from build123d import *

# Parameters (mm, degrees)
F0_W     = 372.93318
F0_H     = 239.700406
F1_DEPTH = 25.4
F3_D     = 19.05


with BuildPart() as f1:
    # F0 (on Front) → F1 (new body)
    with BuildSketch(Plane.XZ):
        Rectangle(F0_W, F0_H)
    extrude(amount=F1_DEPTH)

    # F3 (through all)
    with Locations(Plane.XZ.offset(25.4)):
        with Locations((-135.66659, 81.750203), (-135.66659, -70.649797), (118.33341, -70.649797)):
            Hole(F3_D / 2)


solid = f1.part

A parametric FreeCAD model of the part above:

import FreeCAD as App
import Part
import Sketcher

V = App.Vector
Q = App.Units.Quantity

doc = App.newDocument("Part")
body = doc.addObject("PartDesign::Body", "Body")

sketch1 = body.newObject("Sketcher::SketchObject", "Sketch")
sketch1.AttachmentSupport = (doc.getObject("XZ_Plane"), [""])
sketch1.MapMode = "FlatFace"
sketch1.addGeometry(Part.LineSegment(V(-186, 120, 0), V(-186, -120, 0)), False)
sketch1.addGeometry(Part.LineSegment(V(-186, -120, 0), V(186, -120, 0)), False)
sketch1.addGeometry(Part.LineSegment(V(186, -120, 0), V(186, 120, 0)), False)
sketch1.addGeometry(Part.LineSegment(V(186, 120, 0), V(-186, 120, 0)), False)
sketch1.addConstraint(Sketcher.Constraint("Coincident", 0, 2, 1, 1))
sketch1.addConstraint(Sketcher.Constraint("Coincident", 1, 2, 2, 1))
sketch1.addConstraint(Sketcher.Constraint("Coincident", 2, 2, 3, 1))
sketch1.addConstraint(Sketcher.Constraint("Coincident", 3, 2, 0, 1))
sketch1.addConstraint(Sketcher.Constraint("Vertical", 0))
sketch1.addConstraint(Sketcher.Constraint("Horizontal", 1))
sketch1.addConstraint(Sketcher.Constraint("Vertical", 2))
sketch1.addConstraint(Sketcher.Constraint("Horizontal", 3))
sketch1.addConstraint(Sketcher.Constraint("Symmetric", 0, 2, 2, 2, -1, 1))
sketch1.addConstraint(Sketcher.Constraint("DistanceX", 1, 1, 1, 2, Q("372.93318 mm")))
sketch1.addConstraint(Sketcher.Constraint("DistanceY", 0, 2, 0, 1, Q("239.700406 mm")))
pad1 = body.newObject("PartDesign::Pad", "Pad")
pad1.Profile = sketch1
pad1.Length = Q("1 in")

sketch2 = body.newObject("Sketcher::SketchObject", "Sketch001")
sketch2.AttachmentSupport = (doc.getObject("XZ_Plane"), [""])
sketch2.MapMode = "FlatFace"
sketch2.AttachmentOffset = App.Placement(V(0, 0, 1 * 25.4), App.Rotation())
sketch2.addGeometry(Part.Circle(V(-136, 82, 0), V(0, 0, 1), 10), False)
sketch2.addGeometry(Part.Circle(V(-136, -71, 0), V(0, 0, 1), 10), False)
sketch2.addGeometry(Part.Circle(V(118, -71, 0), V(0, 0, 1), 10), False)
sketch2.addConstraint(Sketcher.Constraint("Equal", 0, 1))
sketch2.addConstraint(Sketcher.Constraint("Equal", 1, 2))
sketch2.addConstraint(Sketcher.Constraint("Horizontal", 1, 3, 2, 3))
sketch2.addConstraint(Sketcher.Constraint("Vertical", 0, 3, 1, 3))
sketch2.addConstraint(Sketcher.Constraint("Diameter", 0, Q("0.75 in")))
sketch2.addConstraint(Sketcher.Constraint("DistanceY", 1, 3, 0, 3, Q("6 in")))
sketch2.addConstraint(Sketcher.Constraint("DistanceX", 1, 3, 2, 3, Q("10 in")))
sketch2.addConstraint(Sketcher.Constraint("DistanceX", 0, 3, -1, 1, Q("135.66659 mm")))
sketch2.addConstraint(Sketcher.Constraint("DistanceY", -1, 1, 0, 3, Q("81.750203 mm")))
doc.recompute()
hole = body.newObject("PartDesign::Hole", "Hole")
hole.Profile = sketch2
hole.ThreadType = "None"
hole.Diameter = Q("0.75 in")
hole.DepthType = "ThroughAll"

doc.recompute()
